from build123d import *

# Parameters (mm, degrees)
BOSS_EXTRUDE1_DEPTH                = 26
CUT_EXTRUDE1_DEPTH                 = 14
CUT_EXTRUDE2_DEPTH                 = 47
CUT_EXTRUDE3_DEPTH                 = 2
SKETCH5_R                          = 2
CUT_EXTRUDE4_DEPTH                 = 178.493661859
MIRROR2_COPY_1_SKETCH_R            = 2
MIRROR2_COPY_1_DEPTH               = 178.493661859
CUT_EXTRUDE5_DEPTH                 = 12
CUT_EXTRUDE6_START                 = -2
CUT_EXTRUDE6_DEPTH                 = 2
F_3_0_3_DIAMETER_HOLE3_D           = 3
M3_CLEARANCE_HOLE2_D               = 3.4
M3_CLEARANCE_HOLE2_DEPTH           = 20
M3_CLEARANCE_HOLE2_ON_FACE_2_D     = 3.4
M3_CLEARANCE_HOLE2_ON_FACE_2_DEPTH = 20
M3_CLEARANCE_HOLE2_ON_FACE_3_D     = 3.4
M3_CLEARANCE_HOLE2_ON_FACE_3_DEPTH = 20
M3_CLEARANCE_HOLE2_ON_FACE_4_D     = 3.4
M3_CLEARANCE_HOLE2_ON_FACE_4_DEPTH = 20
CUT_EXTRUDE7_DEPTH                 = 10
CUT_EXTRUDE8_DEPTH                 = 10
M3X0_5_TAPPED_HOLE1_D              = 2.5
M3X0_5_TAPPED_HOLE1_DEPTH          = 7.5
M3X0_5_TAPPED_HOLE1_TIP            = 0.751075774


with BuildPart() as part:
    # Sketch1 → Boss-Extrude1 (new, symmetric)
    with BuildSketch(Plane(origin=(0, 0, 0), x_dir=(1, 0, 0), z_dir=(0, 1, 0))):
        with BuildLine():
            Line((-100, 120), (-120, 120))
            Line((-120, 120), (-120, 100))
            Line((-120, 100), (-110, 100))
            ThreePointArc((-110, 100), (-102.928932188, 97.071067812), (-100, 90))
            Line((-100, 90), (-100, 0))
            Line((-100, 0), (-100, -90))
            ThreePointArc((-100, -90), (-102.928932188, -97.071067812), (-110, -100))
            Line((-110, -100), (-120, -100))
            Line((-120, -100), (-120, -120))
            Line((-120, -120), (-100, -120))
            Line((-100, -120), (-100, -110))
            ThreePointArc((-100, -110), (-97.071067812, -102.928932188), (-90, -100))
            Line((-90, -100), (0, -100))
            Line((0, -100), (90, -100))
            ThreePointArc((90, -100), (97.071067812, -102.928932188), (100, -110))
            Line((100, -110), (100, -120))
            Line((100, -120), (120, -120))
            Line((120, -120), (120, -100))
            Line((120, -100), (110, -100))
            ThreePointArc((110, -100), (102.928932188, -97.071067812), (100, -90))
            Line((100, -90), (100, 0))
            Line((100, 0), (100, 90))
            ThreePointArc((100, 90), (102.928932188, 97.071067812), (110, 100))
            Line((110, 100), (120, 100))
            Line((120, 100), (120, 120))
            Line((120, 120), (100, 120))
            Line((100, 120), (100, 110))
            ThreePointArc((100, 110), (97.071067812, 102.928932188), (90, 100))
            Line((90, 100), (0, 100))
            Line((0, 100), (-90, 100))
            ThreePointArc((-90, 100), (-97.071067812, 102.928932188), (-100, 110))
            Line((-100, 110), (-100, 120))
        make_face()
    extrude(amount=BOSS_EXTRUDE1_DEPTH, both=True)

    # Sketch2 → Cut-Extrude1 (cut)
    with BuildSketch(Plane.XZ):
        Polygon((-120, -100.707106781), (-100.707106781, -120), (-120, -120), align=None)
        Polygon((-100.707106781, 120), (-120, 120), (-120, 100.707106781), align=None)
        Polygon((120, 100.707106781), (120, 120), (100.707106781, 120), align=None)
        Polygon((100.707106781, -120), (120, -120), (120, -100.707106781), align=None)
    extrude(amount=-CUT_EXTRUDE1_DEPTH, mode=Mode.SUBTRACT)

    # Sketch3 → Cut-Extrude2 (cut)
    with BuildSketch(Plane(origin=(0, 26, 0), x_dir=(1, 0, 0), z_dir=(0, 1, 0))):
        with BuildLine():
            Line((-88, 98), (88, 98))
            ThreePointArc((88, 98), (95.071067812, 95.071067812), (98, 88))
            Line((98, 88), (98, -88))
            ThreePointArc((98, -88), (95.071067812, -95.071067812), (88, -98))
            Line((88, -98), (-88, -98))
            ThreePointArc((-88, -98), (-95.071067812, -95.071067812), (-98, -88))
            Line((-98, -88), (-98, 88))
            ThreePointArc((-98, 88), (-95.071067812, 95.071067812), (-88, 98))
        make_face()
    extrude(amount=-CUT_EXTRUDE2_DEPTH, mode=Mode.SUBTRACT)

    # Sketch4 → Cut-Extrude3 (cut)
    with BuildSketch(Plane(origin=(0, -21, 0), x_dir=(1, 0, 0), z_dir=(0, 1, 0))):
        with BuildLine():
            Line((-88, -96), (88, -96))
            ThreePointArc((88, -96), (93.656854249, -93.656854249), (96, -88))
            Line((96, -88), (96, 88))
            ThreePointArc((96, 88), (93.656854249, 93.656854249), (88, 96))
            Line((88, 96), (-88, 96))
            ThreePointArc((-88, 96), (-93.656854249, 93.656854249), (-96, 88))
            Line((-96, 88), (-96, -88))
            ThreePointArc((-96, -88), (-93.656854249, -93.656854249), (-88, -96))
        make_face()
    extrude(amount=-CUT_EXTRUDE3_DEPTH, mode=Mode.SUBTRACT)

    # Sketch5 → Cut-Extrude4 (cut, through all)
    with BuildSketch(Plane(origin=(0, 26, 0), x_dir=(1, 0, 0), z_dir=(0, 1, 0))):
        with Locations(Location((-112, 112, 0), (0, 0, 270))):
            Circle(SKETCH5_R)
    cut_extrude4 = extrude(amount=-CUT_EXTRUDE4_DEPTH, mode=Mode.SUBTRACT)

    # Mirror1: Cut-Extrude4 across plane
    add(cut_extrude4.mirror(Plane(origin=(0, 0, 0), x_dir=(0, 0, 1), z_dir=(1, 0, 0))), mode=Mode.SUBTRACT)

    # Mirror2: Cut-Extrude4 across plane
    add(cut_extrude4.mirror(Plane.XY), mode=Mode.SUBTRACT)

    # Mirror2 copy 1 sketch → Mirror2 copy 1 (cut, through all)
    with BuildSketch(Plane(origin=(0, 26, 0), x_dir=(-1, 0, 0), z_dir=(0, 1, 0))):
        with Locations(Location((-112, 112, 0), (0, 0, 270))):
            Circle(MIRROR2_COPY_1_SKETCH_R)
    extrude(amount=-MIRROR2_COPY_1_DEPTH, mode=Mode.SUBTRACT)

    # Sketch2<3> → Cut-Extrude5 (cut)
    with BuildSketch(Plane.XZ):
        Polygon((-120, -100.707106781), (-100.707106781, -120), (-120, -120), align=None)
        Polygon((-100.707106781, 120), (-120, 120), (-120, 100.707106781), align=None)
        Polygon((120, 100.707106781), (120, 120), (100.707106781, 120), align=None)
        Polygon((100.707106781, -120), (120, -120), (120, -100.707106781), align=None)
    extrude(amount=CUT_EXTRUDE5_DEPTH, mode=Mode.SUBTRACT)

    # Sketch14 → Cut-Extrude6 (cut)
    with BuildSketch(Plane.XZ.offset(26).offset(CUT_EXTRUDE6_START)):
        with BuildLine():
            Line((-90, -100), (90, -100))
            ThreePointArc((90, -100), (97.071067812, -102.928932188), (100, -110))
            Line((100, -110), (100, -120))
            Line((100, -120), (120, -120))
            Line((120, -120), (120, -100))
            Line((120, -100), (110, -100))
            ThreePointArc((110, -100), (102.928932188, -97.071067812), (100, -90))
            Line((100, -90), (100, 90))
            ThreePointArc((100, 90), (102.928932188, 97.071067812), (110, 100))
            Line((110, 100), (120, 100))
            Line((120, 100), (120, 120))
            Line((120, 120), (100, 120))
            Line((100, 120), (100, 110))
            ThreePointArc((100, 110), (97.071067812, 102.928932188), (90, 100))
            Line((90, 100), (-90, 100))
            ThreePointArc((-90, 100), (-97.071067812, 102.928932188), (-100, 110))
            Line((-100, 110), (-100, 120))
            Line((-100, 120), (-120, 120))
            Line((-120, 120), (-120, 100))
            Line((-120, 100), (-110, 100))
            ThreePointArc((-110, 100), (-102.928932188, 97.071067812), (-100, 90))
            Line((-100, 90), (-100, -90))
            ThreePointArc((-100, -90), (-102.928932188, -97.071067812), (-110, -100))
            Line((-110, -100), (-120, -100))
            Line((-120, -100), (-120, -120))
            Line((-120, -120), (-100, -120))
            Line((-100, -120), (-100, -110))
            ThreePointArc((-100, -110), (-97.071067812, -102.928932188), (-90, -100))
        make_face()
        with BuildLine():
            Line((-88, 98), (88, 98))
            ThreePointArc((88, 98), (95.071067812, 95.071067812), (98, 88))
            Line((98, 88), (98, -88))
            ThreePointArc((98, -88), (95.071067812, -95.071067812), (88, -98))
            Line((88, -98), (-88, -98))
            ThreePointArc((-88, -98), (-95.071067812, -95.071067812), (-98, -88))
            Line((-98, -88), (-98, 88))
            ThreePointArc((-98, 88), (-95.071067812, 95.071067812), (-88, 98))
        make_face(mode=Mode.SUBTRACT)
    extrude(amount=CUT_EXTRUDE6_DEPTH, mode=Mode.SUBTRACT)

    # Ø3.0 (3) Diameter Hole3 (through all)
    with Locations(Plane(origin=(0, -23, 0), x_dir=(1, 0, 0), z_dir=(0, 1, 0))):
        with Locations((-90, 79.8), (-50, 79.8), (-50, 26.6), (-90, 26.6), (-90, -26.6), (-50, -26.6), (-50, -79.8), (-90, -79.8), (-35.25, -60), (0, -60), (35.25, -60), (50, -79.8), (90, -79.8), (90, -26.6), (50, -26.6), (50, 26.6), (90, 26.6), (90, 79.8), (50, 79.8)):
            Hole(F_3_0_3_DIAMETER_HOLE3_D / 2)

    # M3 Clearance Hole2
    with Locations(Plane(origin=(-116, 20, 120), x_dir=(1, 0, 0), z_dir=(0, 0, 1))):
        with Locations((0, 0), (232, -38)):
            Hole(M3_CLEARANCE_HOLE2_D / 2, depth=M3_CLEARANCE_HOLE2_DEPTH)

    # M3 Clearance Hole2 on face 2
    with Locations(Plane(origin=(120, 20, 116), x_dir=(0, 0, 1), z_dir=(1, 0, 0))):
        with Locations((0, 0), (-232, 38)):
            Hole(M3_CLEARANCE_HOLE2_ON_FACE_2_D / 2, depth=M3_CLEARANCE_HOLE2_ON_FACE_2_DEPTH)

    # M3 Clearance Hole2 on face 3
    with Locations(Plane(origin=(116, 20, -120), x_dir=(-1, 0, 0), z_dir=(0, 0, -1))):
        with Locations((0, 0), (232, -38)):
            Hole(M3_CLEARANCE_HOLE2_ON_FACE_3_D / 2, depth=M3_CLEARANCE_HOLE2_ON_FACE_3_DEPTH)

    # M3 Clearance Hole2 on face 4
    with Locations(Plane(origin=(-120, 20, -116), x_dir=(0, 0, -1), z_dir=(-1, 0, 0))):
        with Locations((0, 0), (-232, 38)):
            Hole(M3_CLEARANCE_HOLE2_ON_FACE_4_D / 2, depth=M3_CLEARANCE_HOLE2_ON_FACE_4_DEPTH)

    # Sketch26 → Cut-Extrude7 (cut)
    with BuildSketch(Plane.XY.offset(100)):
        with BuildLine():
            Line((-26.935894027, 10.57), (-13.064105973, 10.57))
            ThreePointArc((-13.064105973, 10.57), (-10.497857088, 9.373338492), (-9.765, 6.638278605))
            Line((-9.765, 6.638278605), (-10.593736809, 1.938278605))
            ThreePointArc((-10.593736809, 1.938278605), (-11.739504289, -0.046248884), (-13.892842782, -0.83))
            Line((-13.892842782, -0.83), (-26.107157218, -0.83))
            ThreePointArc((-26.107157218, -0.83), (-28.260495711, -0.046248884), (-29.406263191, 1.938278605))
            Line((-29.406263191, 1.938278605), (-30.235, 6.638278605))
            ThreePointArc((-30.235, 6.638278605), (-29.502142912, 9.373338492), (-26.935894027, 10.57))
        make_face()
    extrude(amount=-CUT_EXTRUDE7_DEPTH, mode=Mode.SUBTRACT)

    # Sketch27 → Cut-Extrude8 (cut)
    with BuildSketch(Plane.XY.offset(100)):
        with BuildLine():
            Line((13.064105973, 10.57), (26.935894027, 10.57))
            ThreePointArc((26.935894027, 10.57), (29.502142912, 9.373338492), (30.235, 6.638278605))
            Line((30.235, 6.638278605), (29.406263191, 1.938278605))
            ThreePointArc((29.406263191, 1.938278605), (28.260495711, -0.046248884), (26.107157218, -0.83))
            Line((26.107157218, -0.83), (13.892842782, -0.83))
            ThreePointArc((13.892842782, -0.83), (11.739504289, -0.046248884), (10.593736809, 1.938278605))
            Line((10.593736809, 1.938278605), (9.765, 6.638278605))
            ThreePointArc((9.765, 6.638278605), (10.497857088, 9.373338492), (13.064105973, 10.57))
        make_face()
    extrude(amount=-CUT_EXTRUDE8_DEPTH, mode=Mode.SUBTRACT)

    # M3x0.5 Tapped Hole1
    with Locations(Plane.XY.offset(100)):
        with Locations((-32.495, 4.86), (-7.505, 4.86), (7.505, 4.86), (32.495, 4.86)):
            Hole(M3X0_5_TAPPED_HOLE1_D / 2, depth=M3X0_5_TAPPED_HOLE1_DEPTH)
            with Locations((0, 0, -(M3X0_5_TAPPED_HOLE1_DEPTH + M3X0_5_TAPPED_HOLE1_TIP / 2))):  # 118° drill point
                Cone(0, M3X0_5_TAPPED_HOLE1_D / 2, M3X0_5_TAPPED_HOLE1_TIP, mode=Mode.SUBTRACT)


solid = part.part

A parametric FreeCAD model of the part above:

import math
import FreeCAD as App
import Part
import Sketcher

V = App.Vector
Q = App.Units.Quantity

doc = App.newDocument("Part")
params = doc.addObject("Spreadsheet::Sheet", "Params")
for row, (alias, value) in enumerate([
    ("sketch1_radius", "10 mm"),
    ("sketch1_width", "20 mm"),
    ("sketch1_width2", "180 mm"),
    ("pad1_length", "52 mm"),
    ("pocket1_length", "14 mm"),
    ("sketch3_radius", "10 mm"),
    ("sketch3_width", "176 mm"),
    ("pocket2_length", "47 mm"),
    ("sketch4_radius", "8 mm"),
    ("sketch4_width", "176 mm"),
    ("pocket3_length", "2 mm"),
    ("sketch5_diameter", "4 mm"),
    ("sketch6_diameter", "4 mm"),
    ("pocket6_length", "12 mm"),
    ("sketch8_radius", "10 mm"),
    ("sketch8_width", "180 mm"),
    ("sketch8_width2", "20 mm"),
    ("sketch8_width3", "176 mm"),
    ("pocket7_length", "2 mm"),
    ("sketch9_diameter", "3 mm"),
    ("hole_diameter", "3 mm"),
    ("sketch10_diameter", "3.4 mm"),
    ("hole2_diameter", "3.4 mm"),
    ("hole2_depth", "20 mm"),
    ("sketch11_diameter", "3.4 mm"),
    ("hole3_diameter", "3.4 mm"),
    ("hole3_depth", "20 mm"),
    ("sketch12_diameter", "3.4 mm"),
    ("hole4_diameter", "3.4 mm"),
    ("hole4_depth", "20 mm"),
    ("sketch13_diameter", "3.4 mm"),
    ("hole5_diameter", "3.4 mm"),
    ("hole5_depth", "20 mm"),
    ("sketch14_radius", "3.35 mm"),
    ("pocket8_length", "10 mm"),
    ("sketch15_radius", "3.35 mm"),
    ("pocket9_length", "10 mm"),
    ("sketch16_diameter", "2.5 mm"),
    ("hole6_diameter", "2.5 mm"),
    ("hole6_depth", "7.5 mm"),
], start=1):
    params.set(f"A{row}", alias)
    params.set(f"B{row}", "=" + value)
    params.setAlias(f"B{row}", alias)

body = doc.addObject("PartDesign::Body", "Body")

sketch1 = body.newObject("Sketcher::SketchObject", "Sketch")
sketch1.AttachmentSupport = (doc.getObject("XZ_Plane"), [""])
sketch1.MapMode = "FlatFace"
sketch1.addGeometry([
    Part.LineSegment(V(-100, -120, 0), V(-120, -120, 0)),
    Part.LineSegment(V(-120, -120, 0), V(-120, -100, 0)),
    Part.LineSegment(V(-120, -100, 0), V(-110, -100, 0)),
    Part.ArcOfCircle(Part.Circle(V(-110, -90, 0), V(0, 0, 1), 10), math.radians(-90), math.radians(0)),
    Part.LineSegment(V(-100, -90, 0), V(-100, 90, 0)),
    Part.ArcOfCircle(Part.Circle(V(-110, 90, 0), V(0, 0, 1), 10), math.radians(0), math.radians(90)),
    Part.LineSegment(V(-110, 100, 0), V(-120, 100, 0)),
    Part.LineSegment(V(-120, 100, 0), V(-120, 120, 0)),
    Part.LineSegment(V(-120, 120, 0), V(-100, 120, 0)),
    Part.LineSegment(V(-100, 120, 0), V(-100, 110, 0)),
    Part.ArcOfCircle(Part.Circle(V(-90, 110, 0), V(0, 0, 1), 10), math.radians(180), math.radians(270)),
    Part.LineSegment(V(-90, 100, 0), V(90, 100, 0)),
    Part.ArcOfCircle(Part.Circle(V(90, 110, 0), V(0, 0, 1), 10), math.radians(-90), math.radians(0)),
    Part.LineSegment(V(100, 110, 0), V(100, 120, 0)),
    Part.LineSegment(V(100, 120, 0), V(120, 120, 0)),
    Part.LineSegment(V(120, 120, 0), V(120, 100, 0)),
    Part.LineSegment(V(120, 100, 0), V(110, 100, 0)),
    Part.ArcOfCircle(Part.Circle(V(110, 90, 0), V(0, 0, 1), 10), math.radians(90), math.radians(180)),
    Part.LineSegment(V(100, 90, 0), V(100, -90, 0)),
    Part.ArcOfCircle(Part.Circle(V(110, -90, 0), V(0, 0, 1), 10), math.radians(180), math.radians(270)),
    Part.LineSegment(V(110, -100, 0), V(120, -100, 0)),
    Part.LineSegment(V(120, -100, 0), V(120, -120, 0)),
    Part.LineSegment(V(120, -120, 0), V(100, -120, 0)),
    Part.LineSegment(V(100, -120, 0), V(100, -110, 0)),
    Part.ArcOfCircle(Part.Circle(V(90, -110, 0), V(0, 0, 1), 10), math.radians(0), math.radians(90)),
    Part.LineSegment(V(90, -100, 0), V(-90, -100, 0)),
    Part.ArcOfCircle(Part.Circle(V(-90, -110, 0), V(0, 0, 1), 10), math.radians(90), math.radians(180)),
    Part.LineSegment(V(-100, -110, 0), V(-100, -120, 0)),
], False)
sketch1.addConstraint([
    Sketcher.Constraint("Coincident", 0, 2, 1, 1),
    Sketcher.Constraint("Coincident", 1, 2, 2, 1),
    Sketcher.Constraint("Tangent", 2, 2, 3, 1),
    Sketcher.Constraint("Tangent", 3, 2, 4, 1),
    Sketcher.Constraint("Tangent", 4, 2, 5, 1),
    Sketcher.Constraint("Tangent", 5, 2, 6, 1),
    Sketcher.Constraint("Coincident", 6, 2, 7, 1),
    Sketcher.Constraint("Coincident", 7, 2, 8, 1),
    Sketcher.Constraint("Coincident", 8, 2, 9, 1),
    Sketcher.Constraint("Tangent", 9, 2, 10, 1),
    Sketcher.Constraint("Tangent", 10, 2, 11, 1),
    Sketcher.Constraint("Tangent", 11, 2, 12, 1),
    Sketcher.Constraint("Tangent", 12, 2, 13, 1),
    Sketcher.Constraint("Coincident", 13, 2, 14, 1),
    Sketcher.Constraint("Coincident", 14, 2, 15, 1),
    Sketcher.Constraint("Coincident", 15, 2, 16, 1),
    Sketcher.Constraint("Tangent", 16, 2, 17, 1),
    Sketcher.Constraint("Tangent", 17, 2, 18, 1),
    Sketcher.Constraint("Tangent", 18, 2, 19, 1),
    Sketcher.Constraint("Tangent", 19, 2, 20, 1),
    Sketcher.Constraint("Coincident", 20, 2, 21, 1),
    Sketcher.Constraint("Coincident", 21, 2, 22, 1),
    Sketcher.Constraint("Coincident", 22, 2, 23, 1),
    Sketcher.Constraint("Tangent", 23, 2, 24, 1),
    Sketcher.Constraint("Tangent", 24, 2, 25, 1),
    Sketcher.Constraint("Tangent", 25, 2, 26, 1),
    Sketcher.Constraint("Tangent", 26, 2, 27, 1),
    Sketcher.Constraint("Coincident", 27, 2, 0, 1),
    Sketcher.Constraint("Horizontal", 0),
    Sketcher.Constraint("Vertical", 1),
    Sketcher.Constraint("Horizontal", 2),
    Sketcher.Constraint("Vertical", 4),
    Sketcher.Constraint("Horizontal", 6),
    Sketcher.Constraint("Vertical", 7),
    Sketcher.Constraint("Horizontal", 8),
    Sketcher.Constraint("Vertical", 9),
    Sketcher.Constraint("Horizontal", 11),
    Sketcher.Constraint("Vertical", 13),
    Sketcher.Constraint("Horizontal", 14),
    Sketcher.Constraint("Vertical", 15),
    Sketcher.Constraint("Horizontal", 16),
    Sketcher.Constraint("Vertical", 18),
    Sketcher.Constraint("Horizontal", 20),
    Sketcher.Constraint("Vertical", 21),
    Sketcher.Constraint("Horizontal", 22),
    Sketcher.Constraint("Vertical", 23),
    Sketcher.Constraint("Horizontal", 25),
    Sketcher.Constraint("Vertical", 27),
    Sketcher.Constraint("Equal", 3, 5),
    Sketcher.Constraint("Equal", 5, 10),
    Sketcher.Constraint("Equal", 10, 12),
    Sketcher.Constraint("Equal", 12, 17),
    Sketcher.Constraint("Equal", 17, 19),
    Sketcher.Constraint("Equal", 19, 24),
    Sketcher.Constraint("Equal", 24, 26),
    Sketcher.Constraint("Symmetric", 3, 3, 17, 3, -1, 1),
    Sketcher.Constraint("Symmetric", 10, 3, 24, 3, -1, 1),
    Sketcher.Constraint("Symmetric", 0, 2, 14, 2, -1, 1),
    Sketcher.Constraint("Symmetric", 6, 2, 20, 2, -1, 1),
    Sketcher.Constraint("Symmetric", 8, 2, 13, 2, -2),
    Sketcher.Constraint("Symmetric", 6, 2, 15, 2, -2),
    Sketcher.Constraint("Symmetric", 22, 2, 27, 2, -2),
    Sketcher.Constraint("Horizontal", 6, 2, 10, 2),
    Sketcher.Constraint("Vertical", 4, 2, 8, 2),
    Sketcher.Constraint("Equal", 22, 1),
    Sketcher.Constraint("Equal", 25, 4),
    Sketcher.Constraint("Radius", 3, 10.0),
    Sketcher.Constraint("DistanceX", 0, 2, 0, 1, 20.0),
    Sketcher.Constraint("DistanceX", 11, 1, 11, 2, 180.0),
])
sketch1.setExpression("Constraints[66]", "Params.sketch1_radius")
sketch1.setExpression("Constraints[67]", "Params.sketch1_width")
sketch1.setExpression("Constraints[68]", "Params.sketch1_width2")
pad1 = body.newObject("PartDesign::Pad", "Pad")
pad1.Profile = sketch1
pad1.setExpression("Length", "Params.pad1_length")
pad1.Midplane = True

sketch2 = body.newObject("Sketcher::SketchObject", "Sketch001")
sketch2.AttachmentSupport = (doc.getObject("XZ_Plane"), [""])
sketch2.MapMode = "FlatFace"
sketch2.addGeometry([
    Part.LineSegment(V(-100.707107, -120, 0), V(-120, -100.707107, 0)),
    Part.LineSegment(V(-120, -100.707107, 0), V(-120, -120, 0)),
    Part.LineSegment(V(-120, -120, 0), V(-100.707107, -120, 0)),
    Part.LineSegment(V(-100.707107, 120, 0), V(-120, 120, 0)),
    Part.LineSegment(V(-120, 120, 0), V(-120, 100.707107, 0)),
    Part.LineSegment(V(-120, 100.707107, 0), V(-100.707107, 120, 0)),
    Part.LineSegment(V(120, 100.707107, 0), V(120, 120, 0)),
    Part.LineSegment(V(120, 120, 0), V(100.707107, 120, 0)),
    Part.LineSegment(V(100.707107, 120, 0), V(120, 100.707107, 0)),
    Part.LineSegment(V(100.707107, -120, 0), V(120, -120, 0)),
    Part.LineSegment(V(120, -120, 0), V(120, -100.707107, 0)),
    Part.LineSegment(V(120, -100.707107, 0), V(100.707107, -120, 0)),
], False)
sketch2.addConstraint([
    Sketcher.Constraint("Coincident", 0, 2, 1, 1),
    Sketcher.Constraint("Coincident", 1, 2, 2, 1),
    Sketcher.Constraint("Coincident", 2, 2, 0, 1),
    Sketcher.Constraint("Coincident", 3, 2, 4, 1),
    Sketcher.Constraint("Coincident", 4, 2, 5, 1),
    Sketcher.Constraint("Coincident", 5, 2, 3, 1),
    Sketcher.Constraint("Coincident", 6, 2, 7, 1),
    Sketcher.Constraint("Coincident", 7, 2, 8, 1),
    Sketcher.Constraint("Coincident", 8, 2, 6, 1),
    Sketcher.Constraint("Coincident", 9, 2, 10, 1),
    Sketcher.Constraint("Coincident", 10, 2, 11, 1),
    Sketcher.Constraint("Coincident", 11, 2, 9, 1),
    Sketcher.Constraint("Vertical", 1),
    Sketcher.Constraint("Horizontal", 2),
    Sketcher.Constraint("Horizontal", 3),
    Sketcher.Constraint("Vertical", 4),
    Sketcher.Constraint("Vertical", 6),
    Sketcher.Constraint("Horizontal", 7),
    Sketcher.Constraint("Horizontal", 9),
    Sketcher.Constraint("Vertical", 10),
    Sketcher.Constraint("Symmetric", 1, 2, 6, 2, -1, 1),
    Sketcher.Constraint("Symmetric", 3, 2, 9, 2, -1, 1),
    Sketcher.Constraint("Symmetric", 3, 2, 6, 2, -2),
    Sketcher.Constraint("Perpendicular", 0, 5),
    Sketcher.Constraint("Perpendicular", 5, 8),
    Sketcher.Constraint("Perpendicular", 8, 11),
    Sketcher.Constraint("Horizontal", 4, 2, 8, 2),
    Sketcher.Constraint("Horizontal", 0, 2, 10, 2),
    Sketcher.Constraint("Vertical", 2, 2, 5, 2),
    Sketcher.Constraint("Vertical", 7, 2, 11, 2),
    Sketcher.Constraint("DistanceX", 0, 2, -1, 1, 120.0),
    Sketcher.Constraint("DistanceY", 1, 2, -1, 1, 120.0),
    Sketcher.Constraint("Distance", 0, 27.284271),
])
pocket1 = body.newObject("PartDesign::Pocket", "Pocket")
pocket1.Profile = sketch2
pocket1.setExpression("Length", "Params.pocket1_length")

sketch3 = body.newObject("Sketcher::SketchObject", "Sketch002")
sketch3.AttachmentSupport = (doc.getObject("XZ_Plane"), [""])
sketch3.MapMode = "FlatFace"
sketch3.AttachmentOffset = App.Placement(V(0, 0, -26), App.Rotation())
sketch3.addGeometry([
    Part.LineSegment(V(88, -98, 0), V(-88, -98, 0)),
    Part.ArcOfCircle(Part.Circle(V(-88, -88, 0), V(0, 0, 1), 10), math.radians(180), math.radians(270)),
    Part.LineSegment(V(-98, -88, 0), V(-98, 88, 0)),
    Part.ArcOfCircle(Part.Circle(V(-88, 88, 0), V(0, 0, 1), 10), math.radians(90), math.radians(180)),
    Part.LineSegment(V(-88, 98, 0), V(88, 98, 0)),
    Part.ArcOfCircle(Part.Circle(V(88, 88, 0), V(0, 0, 1), 10), math.radians(0), math.radians(90)),
    Part.LineSegment(V(98, 88, 0), V(98, -88, 0)),
    Part.ArcOfCircle(Part.Circle(V(88, -88, 0), V(0, 0, 1), 10), math.radians(-90), math.radians(0)),
], False)
sketch3.addConstraint([
    Sketcher.Constraint("Tangent", 0, 2, 1, 2),
    Sketcher.Constraint("Tangent", 1, 1, 2, 1),
    Sketcher.Constraint("Tangent", 2, 2, 3, 2),
    Sketcher.Constraint("Tangent", 3, 1, 4, 1),
    Sketcher.Constraint("Tangent", 4, 2, 5, 2),
    Sketcher.Constraint("Tangent", 5, 1, 6, 1),
    Sketcher.Constraint("Tangent", 6, 2, 7, 2),
    Sketcher.Constraint("Tangent", 7, 1, 0, 1),
    Sketcher.Constraint("Horizontal", 0),
    Sketcher.Constraint("Vertical", 2),
    Sketcher.Constraint("Horizontal", 4),
    Sketcher.Constraint("Vertical", 6),
    Sketcher.Constraint("Equal", 1, 3),
    Sketcher.Constraint("Equal", 3, 5),
    Sketcher.Constraint("Equal", 5, 7),
    Sketcher.Constraint("Symmetric", 1, 3, 5, 3, -1, 1),
    Sketcher.Constraint("Equal", 4, 2),
    Sketcher.Constraint("Radius", 1, 10.0),
    Sketcher.Constraint("DistanceX", 0, 2, 0, 1, 176.0),
])
sketch3.setExpression("Constraints[17]", "Params.sketch3_radius")
sketch3.setExpression("Constraints[18]", "Params.sketch3_width")
pocket2 = body.newObject("PartDesign::Pocket", "Pocket001")
pocket2.Profile = sketch3
pocket2.setExpression("Length", "Params.pocket2_length")
pocket2.Reversed = True

sketch4 = body.newObject("Sketcher::SketchObject", "Sketch003")
sketch4.AttachmentSupport = (doc.getObject("XZ_Plane"), [""])
sketch4.MapMode = "FlatFace"
sketch4.AttachmentOffset = App.Placement(V(0, 0, 21), App.Rotation())
sketch4.addGeometry([
    Part.LineSegment(V(-88, 96, 0), V(88, 96, 0)),
    Part.ArcOfCircle(Part.Circle(V(88, 88, 0), V(0, 0, 1), 8), math.radians(0), math.radians(90)),
    Part.LineSegment(V(96, 88, 0), V(96, -88, 0)),
    Part.ArcOfCircle(Part.Circle(V(88, -88, 0), V(0, 0, 1), 8), math.radians(-90), math.radians(0)),
    Part.LineSegment(V(88, -96, 0), V(-88, -96, 0)),
    Part.ArcOfCircle(Part.Circle(V(-88, -88, 0), V(0, 0, 1), 8), math.radians(-180), math.radians(-90)),
    Part.LineSegment(V(-96, -88, 0), V(-96, 88, 0)),
    Part.ArcOfCircle(Part.Circle(V(-88, 88, 0), V(0, 0, 1), 8), math.radians(90), math.radians(180)),
], False)
sketch4.addConstraint([
    Sketcher.Constraint("Tangent", 0, 2, 1, 2),
    Sketcher.Constraint("Tangent", 1, 1, 2, 1),
    Sketcher.Constraint("Tangent", 2, 2, 3, 2),
    Sketcher.Constraint("Tangent", 3, 1, 4, 1),
    Sketcher.Constraint("Tangent", 4, 2, 5, 2),
    Sketcher.Constraint("Tangent", 5, 1, 6, 1),
    Sketcher.Constraint("Tangent", 6, 2, 7, 2),
    Sketcher.Constraint("Tangent", 7, 1, 0, 1),
    Sketcher.Constraint("Horizontal", 0),
    Sketcher.Constraint("Vertical", 2),
    Sketcher.Constraint("Horizontal", 4),
    Sketcher.Constraint("Vertical", 6),
    Sketcher.Constraint("Equal", 1, 3),
    Sketcher.Constraint("Equal", 3, 5),
    Sketcher.Constraint("Equal", 5, 7),
    Sketcher.Constraint("Symmetric", 1, 3, 5, 3, -1, 1),
    Sketcher.Constraint("Equal", 4, 2),
    Sketcher.Constraint("Radius", 1, 8.0),
    Sketcher.Constraint("DistanceX", 0, 1, 0, 2, 176.0),
])
sketch4.setExpression("Constraints[17]", "Params.sketch4_radius")
sketch4.setExpression("Constraints[18]", "Params.sketch4_width")
pocket3 = body.newObject("PartDesign::Pocket", "Pocket002")
pocket3.Profile = sketch4
pocket3.setExpression("Length", "Params.pocket3_length")
pocket3.Reversed = True

sketch5 = body.newObject("Sketcher::SketchObject", "Sketch004")
sketch5.AttachmentSupport = (doc.getObject("XZ_Plane"), [""])
sketch5.MapMode = "FlatFace"
sketch5.AttachmentOffset = App.Placement(V(0, 0, -26), App.Rotation())
sketch5.addGeometry(Part.Circle(V(-112, -112, 0), V(0, 0, 1), 2), False)
sketch5.addConstraint([
    Sketcher.Constraint("Diameter", 0, 4.0),
    Sketcher.Constraint("DistanceX", 0, 3, -1, 1, 112.0),
    Sketcher.Constraint("DistanceY", 0, 3, -1, 1, 112.0),
])
sketch5.setExpression("Constraints[0]", "Params.sketch5_diameter")
pocket4 = body.newObject("PartDesign::Pocket", "Pocket003")
pocket4.Profile = sketch5
pocket4.Type = "ThroughAll"
pocket4.Reversed = True
doc.recompute()

mirrored = body.newObject("PartDesign::Mirrored", "Mirrored")
mirrored.Originals = [pocket4]
mirrored.MirrorPlane = (doc.getObject("YZ_Plane"), [""])
body.Tip = mirrored
doc.recompute()

mirrored2 = body.newObject("PartDesign::Mirrored", "Mirrored001")
mirrored2.Originals = [pocket4]
mirrored2.MirrorPlane = (doc.getObject("XY_Plane"), [""])
body.Tip = mirrored2

sketch6 = body.newObject("Sketcher::SketchObject", "Sketch005")
sketch6.AttachmentSupport = (doc.getObject("XZ_Plane"), [""])
sketch6.MapMode = "FlatFace"
sketch6.AttachmentOffset = App.Placement(V(0, 0, -26), App.Rotation())
sketch6.addGeometry(Part.Circle(V(112, 112, 0), V(0, 0, 1), 2), False)
sketch6.addConstraint([
    Sketcher.Constraint("Diameter", 0, 4.0),
    Sketcher.Constraint("DistanceX", -1, 1, 0, 3, 112.0),
    Sketcher.Constraint("DistanceY", -1, 1, 0, 3, 112.0),
])
sketch6.setExpression("Constraints[0]", "Params.sketch6_diameter")
pocket5 = body.newObject("PartDesign::Pocket", "Pocket004")
pocket5.Profile = sketch6
pocket5.Type = "ThroughAll"
pocket5.Reversed = True

sketch7 = body.newObject("Sketcher::SketchObject", "Sketch006")
sketch7.AttachmentSupport = (doc.getObject("XZ_Plane"), [""])
sketch7.MapMode = "FlatFace"
sketch7.addGeometry([
    Part.LineSegment(V(-100.707107, -120, 0), V(-120, -100.707107, 0)),
    Part.LineSegment(V(-120, -100.707107, 0), V(-120, -120, 0)),
    Part.LineSegment(V(-120, -120, 0), V(-100.707107, -120, 0)),
    Part.LineSegment(V(-100.707107, 120, 0), V(-120, 120, 0)),
    Part.LineSegment(V(-120, 120, 0), V(-120, 100.707107, 0)),
    Part.LineSegment(V(-120, 100.707107, 0), V(-100.707107, 120, 0)),
    Part.LineSegment(V(120, 100.707107, 0), V(120, 120, 0)),
    Part.LineSegment(V(120, 120, 0), V(100.707107, 120, 0)),
    Part.LineSegment(V(100.707107, 120, 0), V(120, 100.707107, 0)),
    Part.LineSegment(V(100.707107, -120, 0), V(120, -120, 0)),
    Part.LineSegment(V(120, -120, 0), V(120, -100.707107, 0)),
    Part.LineSegment(V(120, -100.707107, 0), V(100.707107, -120, 0)),
], False)
sketch7.addConstraint([
    Sketcher.Constraint("Coincident", 0, 2, 1, 1),
    Sketcher.Constraint("Coincident", 1, 2, 2, 1),
    Sketcher.Constraint("Coincident", 2, 2, 0, 1),
    Sketcher.Constraint("Coincident", 3, 2, 4, 1),
    Sketcher.Constraint("Coincident", 4, 2, 5, 1),
    Sketcher.Constraint("Coincident", 5, 2, 3, 1),
    Sketcher.Constraint("Coincident", 6, 2, 7, 1),
    Sketcher.Constraint("Coincident", 7, 2, 8, 1),
    Sketcher.Constraint("Coincident", 8, 2, 6, 1),
    Sketcher.Constraint("Coincident", 9, 2, 10, 1),
    Sketcher.Constraint("Coincident", 10, 2, 11, 1),
    Sketcher.Constraint("Coincident", 11, 2, 9, 1),
    Sketcher.Constraint("Vertical", 1),
    Sketcher.Constraint("Horizontal", 2),
    Sketcher.Constraint("Horizontal", 3),
    Sketcher.Constraint("Vertical", 4),
    Sketcher.Constraint("Vertical", 6),
    Sketcher.Constraint("Horizontal", 7),
    Sketcher.Constraint("Horizontal", 9),
    Sketcher.Constraint("Vertical", 10),
    Sketcher.Constraint("Symmetric", 1, 2, 6, 2, -1, 1),
    Sketcher.Constraint("Symmetric", 3, 2, 9, 2, -1, 1),
    Sketcher.Constraint("Symmetric", 3, 2, 6, 2, -2),
    Sketcher.Constraint("Perpendicular", 0, 5),
    Sketcher.Constraint("Perpendicular", 5, 8),
    Sketcher.Constraint("Perpendicular", 8, 11),
    Sketcher.Constraint("Horizontal", 4, 2, 8, 2),
    Sketcher.Constraint("Horizontal", 0, 2, 10, 2),
    Sketcher.Constraint("Vertical", 2, 2, 5, 2),
    Sketcher.Constraint("Vertical", 7, 2, 11, 2),
    Sketcher.Constraint("DistanceX", 0, 2, -1, 1, 120.0),
    Sketcher.Constraint("DistanceY", 1, 2, -1, 1, 120.0),
    Sketcher.Constraint("Distance", 0, 27.284271),
])
pocket6 = body.newObject("PartDesign::Pocket", "Pocket005")
pocket6.Profile = sketch7
pocket6.setExpression("Length", "Params.pocket6_length")
pocket6.Reversed = True

sketch8 = body.newObject("Sketcher::SketchObject", "Sketch007")
sketch8.AttachmentSupport = (doc.getObject("XZ_Plane"), [""])
sketch8.MapMode = "FlatFace"
sketch8.AttachmentOffset = App.Placement(V(0, 0, 24), App.Rotation())
sketch8.addGeometry([
    Part.LineSegment(V(-90, -100, 0), V(90, -100, 0)),
    Part.ArcOfCircle(Part.Circle(V(90, -110, 0), V(0, 0, 1), 10), math.radians(0), math.radians(90)),
    Part.LineSegment(V(100, -110, 0), V(100, -120, 0)),
    Part.LineSegment(V(100, -120, 0), V(120, -120, 0)),
    Part.LineSegment(V(120, -120, 0), V(120, -100, 0)),
    Part.LineSegment(V(120, -100, 0), V(110, -100, 0)),
    Part.ArcOfCircle(Part.Circle(V(110, -90, 0), V(0, 0, 1), 10), math.radians(180), math.radians(270)),
    Part.LineSegment(V(100, -90, 0), V(100, 90, 0)),
    Part.ArcOfCircle(Part.Circle(V(110, 90, 0), V(0, 0, 1), 10), math.radians(90), math.radians(180)),
    Part.LineSegment(V(110, 100, 0), V(120, 100, 0)),
    Part.LineSegment(V(120, 100, 0), V(120, 120, 0)),
    Part.LineSegment(V(120, 120, 0), V(100, 120, 0)),
    Part.LineSegment(V(100, 120, 0), V(100, 110, 0)),
    Part.ArcOfCircle(Part.Circle(V(90, 110, 0), V(0, 0, 1), 10), math.radians(-90), math.radians(0)),
    Part.LineSegment(V(90, 100, 0), V(-90, 100, 0)),
    Part.ArcOfCircle(Part.Circle(V(-90, 110, 0), V(0, 0, 1), 10), math.radians(180), math.radians(270)),
    Part.LineSegment(V(-100, 110, 0), V(-100, 120, 0)),
    Part.LineSegment(V(-100, 120, 0), V(-120, 120, 0)),
    Part.LineSegment(V(-120, 120, 0), V(-120, 100, 0)),
    Part.LineSegment(V(-120, 100, 0), V(-110, 100, 0)),
    Part.ArcOfCircle(Part.Circle(V(-110, 90, 0), V(0, 0, 1), 10), math.radians(0), math.radians(90)),
    Part.LineSegment(V(-100, 90, 0), V(-100, -90, 0)),
    Part.ArcOfCircle(Part.Circle(V(-110, -90, 0), V(0, 0, 1), 10), math.radians(-90), math.radians(0)),
    Part.LineSegment(V(-110, -100, 0), V(-120, -100, 0)),
    Part.LineSegment(V(-120, -100, 0), V(-120, -120, 0)),
    Part.LineSegment(V(-120, -120, 0), V(-100, -120, 0)),
    Part.LineSegment(V(-100, -120, 0), V(-100, -110, 0)),
    Part.ArcOfCircle(Part.Circle(V(-90, -110, 0), V(0, 0, 1), 10), math.radians(90), math.radians(180)),
    Part.ArcOfCircle(Part.Circle(V(-88, 88, 0), V(0, 0, 1), 10), math.radians(90), math.radians(180)),
    Part.LineSegment(V(-88, 98, 0), V(88, 98, 0)),
    Part.ArcOfCircle(Part.Circle(V(88, 88, 0), V(0, 0, 1), 10), math.radians(0), math.radians(90)),
    Part.LineSegment(V(98, 88, 0), V(98, -88, 0)),
    Part.ArcOfCircle(Part.Circle(V(88, -88, 0), V(0, 0, 1), 10), math.radians(-90), math.radians(0)),
    Part.LineSegment(V(88, -98, 0), V(-88, -98, 0)),
    Part.ArcOfCircle(Part.Circle(V(-88, -88, 0), V(0, 0, 1), 10), math.radians(180), math.radians(270)),
    Part.LineSegment(V(-98, -88, 0), V(-98, 88, 0)),
], False)
sketch8.addConstraint([
    Sketcher.Constraint("Tangent", 0, 2, 1, 2),
    Sketcher.Constraint("Tangent", 1, 1, 2, 1),
    Sketcher.Constraint("Coincident", 2, 2, 3, 1),
    Sketcher.Constraint("Coincident", 3, 2, 4, 1),
    Sketcher.Constraint("Coincident", 4, 2, 5, 1),
    Sketcher.Constraint("Tangent", 5, 2, 6, 2),
    Sketcher.Constraint("Tangent", 6, 1, 7, 1),
    Sketcher.Constraint("Tangent", 7, 2, 8, 2),
    Sketcher.Constraint("Tangent", 8, 1, 9, 1),
    Sketcher.Constraint("Coincident", 9, 2, 10, 1),
    Sketcher.Constraint("Coincident", 10, 2, 11, 1),
    Sketcher.Constraint("Coincident", 11, 2, 12, 1),
    Sketcher.Constraint("Tangent", 12, 2, 13, 2),
    Sketcher.Constraint("Tangent", 13, 1, 14, 1),
    Sketcher.Constraint("Tangent", 14, 2, 15, 2),
    Sketcher.Constraint("Tangent", 15, 1, 16, 1),
    Sketcher.Constraint("Coincident", 16, 2, 17, 1),
    Sketcher.Constraint("Coincident", 17, 2, 18, 1),
    Sketcher.Constraint("Coincident", 18, 2, 19, 1),
    Sketcher.Constraint("Tangent", 19, 2, 20, 2),
    Sketcher.Constraint("Tangent", 20, 1, 21, 1),
    Sketcher.Constraint("Tangent", 21, 2, 22, 2),
    Sketcher.Constraint("Tangent", 22, 1, 23, 1),
    Sketcher.Constraint("Coincident", 23, 2, 24, 1),
    Sketcher.Constraint("Coincident", 24, 2, 25, 1),
    Sketcher.Constraint("Coincident", 25, 2, 26, 1),
    Sketcher.Constraint("Tangent", 26, 2, 27, 2),
    Sketcher.Constraint("Tangent", 27, 1, 0, 1),
    Sketcher.Constraint("Tangent", 28, 1, 29, 1),
    Sketcher.Constraint("Tangent", 29, 2, 30, 2),
    Sketcher.Constraint("Tangent", 30, 1, 31, 1),
    Sketcher.Constraint("Tangent", 31, 2, 32, 2),
    Sketcher.Constraint("Tangent", 32, 1, 33, 1),
    Sketcher.Constraint("Tangent", 33, 2, 34, 2),
    Sketcher.Constraint("Tangent", 34, 1, 35, 1),
    Sketcher.Constraint("Tangent", 35, 2, 28, 2),
    Sketcher.Constraint("Horizontal", 0),
    Sketcher.Constraint("Vertical", 2),
    Sketcher.Constraint("Horizontal", 3),
    Sketcher.Constraint("Vertical", 4),
    Sketcher.Constraint("Horizontal", 5),
    Sketcher.Constraint("Vertical", 7),
    Sketcher.Constraint("Horizontal", 9),
    Sketcher.Constraint("Vertical", 10),
    Sketcher.Constraint("Horizontal", 11),
    Sketcher.Constraint("Vertical", 12),
    Sketcher.Constraint("Horizontal", 14),
    Sketcher.Constraint("Vertical", 16),
    Sketcher.Constraint("Horizontal", 17),
    Sketcher.Constraint("Vertical", 18),
    Sketcher.Constraint("Horizontal", 19),
    Sketcher.Constraint("Vertical", 21),
    Sketcher.Constraint("Horizontal", 23),
    Sketcher.Constraint("Vertical", 24),
    Sketcher.Constraint("Horizontal", 25),
    Sketcher.Constraint("Vertical", 26),
    Sketcher.Constraint("Horizontal", 29),
    Sketcher.Constraint("Vertical", 31),
    Sketcher.Constraint("Horizontal", 33),
    Sketcher.Constraint("Vertical", 35),
    Sketcher.Constraint("Equal", 1, 6),
    Sketcher.Constraint("Equal", 6, 8),
    Sketcher.Constraint("Equal", 8, 13),
    Sketcher.Constraint("Equal", 13, 15),
    Sketcher.Constraint("Equal", 15, 20),
    Sketcher.Constraint("Equal", 20, 22),
    Sketcher.Constraint("Equal", 22, 27),
    Sketcher.Constraint("Equal", 27, 28),
    Sketcher.Constraint("Equal", 28, 30),
    Sketcher.Constraint("Equal", 30, 32),
    Sketcher.Constraint("Equal", 32, 34),
    Sketcher.Constraint("Symmetric", 1, 3, 15, 3, -1, 1),
    Sketcher.Constraint("Symmetric", 6, 3, 20, 3, -1, 1),
    Sketcher.Constraint("Symmetric", 28, 3, 32, 3, -1, 1),
    Sketcher.Constraint("Symmetric", 3, 2, 17, 2, -1, 1),
    Sketcher.Constraint("Symmetric", 9, 2, 23, 2, -1, 1),
    Sketcher.Constraint("Symmetric", 11, 2, 25, 2, -1, 1),
    Sketcher.Constraint("Symmetric", 11, 2, 16, 2, -2),
    Sketcher.Constraint("Symmetric", 9, 2, 18, 2, -2),
    Sketcher.Constraint("Horizontal", 0, 2, 4, 2),
    Sketcher.Constraint("Vertical", 2, 2, 6, 1),
    Sketcher.Constraint("Equal", 23, 2),
    Sketcher.Constraint("Equal", 14, 7),
    Sketcher.Constraint("Equal", 33, 31),
    Sketcher.Constraint("Radius", 1, 10.0),
    Sketcher.Constraint("DistanceX", 0, 1, 0, 2, 180.0),
    Sketcher.Constraint("DistanceX", 3, 1, 3, 2, 20.0),
    Sketcher.Constraint("DistanceX", 29, 1, 29, 2, 176.0),
])
sketch8.setExpression("Constraints[84]", "Params.sketch8_radius")
sketch8.setExpression("Constraints[85]", "Params.sketch8_width")
sketch8.setExpression("Constraints[86]", "Params.sketch8_width2")
sketch8.setExpression("Constraints[87]", "Params.sketch8_width3")
pocket7 = body.newObject("PartDesign::Pocket", "Pocket006")
pocket7.Profile = sketch8
pocket7.setExpression("Length", "Params.pocket7_length")
pocket7.Reversed = True

sketch9 = body.newObject("Sketcher::SketchObject", "Sketch008")
sketch9.AttachmentSupport = (doc.getObject("XZ_Plane"), [""])
sketch9.MapMode = "FlatFace"
sketch9.AttachmentOffset = App.Placement(V(0, 0, 23), App.Rotation())
sketch9.addGeometry([
    Part.Circle(V(-90, -79.8, 0), V(0, 0, 1), 1.5),
    Part.Circle(V(-50, -79.8, 0), V(0, 0, 1), 1.5),
    Part.Circle(V(-50, -26.6, 0), V(0, 0, 1), 1.5),
    Part.Circle(V(-90, -26.6, 0), V(0, 0, 1), 1.5),
    Part.Circle(V(-90, 26.6, 0), V(0, 0, 1), 1.5),
    Part.Circle(V(-50, 26.6, 0), V(0, 0, 1), 1.5),
    Part.Circle(V(-50, 79.8, 0), V(0, 0, 1), 1.5),
    Part.Circle(V(-90, 79.8, 0), V(0, 0, 1), 1.5),
    Part.Circle(V(-35.25, 60, 0), V(0, 0, 1), 1.5),
    Part.Circle(V(0, 60, 0), V(0, 0, 1), 1.5),
    Part.Circle(V(35.25, 60, 0), V(0, 0, 1), 1.5),
    Part.Circle(V(50, 79.8, 0), V(0, 0, 1), 1.5),
    Part.Circle(V(90, 79.8, 0), V(0, 0, 1), 1.5),
    Part.Circle(V(90, 26.6, 0), V(0, 0, 1), 1.5),
    Part.Circle(V(50, 26.6, 0), V(0, 0, 1), 1.5),
    Part.Circle(V(50, -26.6, 0), V(0, 0, 1), 1.5),
    Part.Circle(V(90, -26.6, 0), V(0, 0, 1), 1.5),
    Part.Circle(V(90, -79.8, 0), V(0, 0, 1), 1.5),
    Part.Circle(V(50, -79.8, 0), V(0, 0, 1), 1.5),
], False)
sketch9.addConstraint([
    Sketcher.Constraint("Equal", 0, 1),
    Sketcher.Constraint("Equal", 1, 2),
    Sketcher.Constraint("Equal", 2, 3),
    Sketcher.Constraint("Equal", 3, 4),
    Sketcher.Constraint("Equal", 4, 5),
    Sketcher.Constraint("Equal", 5, 6),
    Sketcher.Constraint("Equal", 6, 7),
    Sketcher.Constraint("Equal", 7, 8),
    Sketcher.Constraint("Equal", 8, 9),
    Sketcher.Constraint("Equal", 9, 10),
    Sketcher.Constraint("Equal", 10, 11),
    Sketcher.Constraint("Equal", 11, 12),
    Sketcher.Constraint("Equal", 12, 13),
    Sketcher.Constraint("Equal", 13, 14),
    Sketcher.Constraint("Equal", 14, 15),
    Sketcher.Constraint("Equal", 15, 16),
    Sketcher.Constraint("Equal", 16, 17),
    Sketcher.Constraint("Equal", 17, 18),
    Sketcher.Constraint("Symmetric", 1, 3, 11, 3, -1, 1),
    Sketcher.Constraint("Symmetric", 0, 3, 12, 3, -1, 1),
    Sketcher.Constraint("Symmetric", 3, 3, 13, 3, -1, 1),
    Sketcher.Constraint("Symmetric", 2, 3, 14, 3, -1, 1),
    Sketcher.Constraint("Symmetric", 5, 3, 15, 3, -1, 1),
    Sketcher.Constraint("Symmetric", 4, 3, 16, 3, -1, 1),
    Sketcher.Constraint("Symmetric", 7, 3, 17, 3, -1, 1),
    Sketcher.Constraint("Symmetric", 6, 3, 18, 3, -1, 1),
    Sketcher.Constraint("Symmetric", 8, 3, 10, 3, -2),
    Sketcher.Constraint("Symmetric", 6, 3, 11, 3, -2),
    Sketcher.Constraint("Symmetric", 7, 3, 12, 3, -2),
    Sketcher.Constraint("Symmetric", 4, 3, 13, 3, -2),
    Sketcher.Constraint("Symmetric", 5, 3, 14, 3, -2),
    Sketcher.Constraint("PointOnObject", 9, 3, -2),
    Sketcher.Constraint("Horizontal", 0, 3, 1, 3),
    Sketcher.Constraint("Horizontal", 2, 3, 3, 3),
    Sketcher.Constraint("Horizontal", 8, 3, 9, 3),
    Sketcher.Constraint("Vertical", 1, 3, 2, 3),
    Sketcher.Constraint("Vertical", 0, 3, 3, 3),
    Sketcher.Constraint("Diameter", 0, 3.0),
    Sketcher.Constraint("DistanceX", 0, 3, -1, 1, 90.0),
    Sketcher.Constraint("DistanceX", 1, 3, -1, 1, 50.0),
    Sketcher.Constraint("DistanceY", -1, 1, 8, 3, 60.0),
    Sketcher.Constraint("DistanceY", 0, 3, -1, 1, 79.8),
    Sketcher.Constraint("DistanceY", 2, 3, -1, 1, 26.6),
    Sketcher.Constraint("DistanceX", 8, 3, 10, 3, 70.5),
])
sketch9.setExpression("Constraints[37]", "Params.sketch9_diameter")
doc.recompute()
hole = body.newObject("PartDesign::Hole", "Hole")
hole.Profile = sketch9
hole.ThreadType = "None"
hole.setExpression("Diameter", "Params.hole_diameter")
hole.DepthType = "ThroughAll"
hole.Reversed = True

sketch10 = body.newObject("Sketcher::SketchObject", "Sketch009")
sketch10.AttachmentSupport = (doc.getObject("XY_Plane"), [""])
sketch10.MapMode = "FlatFace"
sketch10.AttachmentOffset = App.Placement(V(0, 0, 120), App.Rotation())
sketch10.addGeometry([
    Part.Circle(V(-116, 20, 0), V(0, 0, 1), 1.7),
    Part.Circle(V(116, -18, 0), V(0, 0, 1), 1.7),
], False)
sketch10.addConstraint([
    Sketcher.Constraint("Equal", 0, 1),
    Sketcher.Constraint("Diameter", 0, 3.4),
    Sketcher.Constraint("DistanceX", 0, 3, -1, 1, 116.0),
    Sketcher.Constraint("DistanceY", -1, 1, 0, 3, 20.0),
    Sketcher.Constraint("DistanceX", -1, 1, 1, 3, 116.0),
    Sketcher.Constraint("DistanceY", 1, 3, -1, 1, 18.0),
])
sketch10.setExpression("Constraints[1]", "Params.sketch10_diameter")
doc.recompute()
hole2 = body.newObject("PartDesign::Hole", "Hole001")
hole2.Profile = sketch10
hole2.ThreadType = "None"
hole2.setExpression("Diameter", "Params.hole2_diameter")
hole2.DepthType = "Dimension"
hole2.setExpression("Depth", "Params.hole2_depth")
hole2.DrillPoint = "Flat"

sketch11 = body.newObject("Sketcher::SketchObject", "Sketch010")
sketch11.AttachmentSupport = (doc.getObject("YZ_Plane"), [""])
sketch11.MapMode = "FlatFace"
sketch11.AttachmentOffset = App.Placement(V(0, 0, 120), App.Rotation())
sketch11.addGeometry([
    Part.Circle(V(20, 116, 0), V(0, 0, 1), 1.7),
    Part.Circle(V(-18, -116, 0), V(0, 0, 1), 1.7),
], False)
sketch11.addConstraint([
    Sketcher.Constraint("Equal", 0, 1),
    Sketcher.Constraint("Diameter", 0, 3.4),
    Sketcher.Constraint("DistanceX", -1, 1, 0, 3, 20.0),
    Sketcher.Constraint("DistanceY", -1, 1, 0, 3, 116.0),
    Sketcher.Constraint("DistanceX", 1, 3, -1, 1, 18.0),
    Sketcher.Constraint("DistanceY", 1, 3, -1, 1, 116.0),
])
sketch11.setExpression("Constraints[1]", "Params.sketch11_diameter")
doc.recompute()
hole3 = body.newObject("PartDesign::Hole", "Hole002")
hole3.Profile = sketch11
hole3.ThreadType = "None"
hole3.setExpression("Diameter", "Params.hole3_diameter")
hole3.DepthType = "Dimension"
hole3.setExpression("Depth", "Params.hole3_depth")
hole3.DrillPoint = "Flat"

sketch12 = body.newObject("Sketcher::SketchObject", "Sketch011")
sketch12.AttachmentSupport = (doc.getObject("XY_Plane"), [""])
sketch12.MapMode = "FlatFace"
sketch12.AttachmentOffset = App.Placement(V(0, 0, -120), App.Rotation())
sketch12.addGeometry([
    Part.Circle(V(116, 20, 0), V(0, 0, 1), 1.7),
    Part.Circle(V(-116, -18, 0), V(0, 0, 1), 1.7),
], False)
sketch12.addConstraint([
    Sketcher.Constraint("Equal", 0, 1),
    Sketcher.Constraint("Diameter", 0, 3.4),
    Sketcher.Constraint("DistanceX", -1, 1, 0, 3, 116.0),
    Sketcher.Constraint("DistanceY", -1, 1, 0, 3, 20.0),
    Sketcher.Constraint("DistanceX", 1, 3, -1, 1, 116.0),
    Sketcher.Constraint("DistanceY", 1, 3, -1, 1, 18.0),
])
sketch12.setExpression("Constraints[1]", "Params.sketch12_diameter")
doc.recompute()
hole4 = body.newObject("PartDesign::Hole", "Hole003")
hole4.Profile = sketch12
hole4.ThreadType = "None"
hole4.setExpression("Diameter", "Params.hole4_diameter")
hole4.DepthType = "Dimension"
hole4.setExpression("Depth", "Params.hole4_depth")
hole4.DrillPoint = "Flat"
hole4.Reversed = True

sketch13 = body.newObject("Sketcher::SketchObject", "Sketch012")
sketch13.AttachmentSupport = (doc.getObject("YZ_Plane"), [""])
sketch13.MapMode = "FlatFace"
sketch13.AttachmentOffset = App.Placement(V(0, 0, -120), App.Rotation())
sketch13.addGeometry([
    Part.Circle(V(20, -116, 0), V(0, 0, 1), 1.7),
    Part.Circle(V(-18, 116, 0), V(0, 0, 1), 1.7),
], False)
sketch13.addConstraint([
    Sketcher.Constraint("Equal", 0, 1),
    Sketcher.Constraint("Diameter", 0, 3.4),
    Sketcher.Constraint("DistanceX", -1, 1, 0, 3, 20.0),
    Sketcher.Constraint("DistanceY", 0, 3, -1, 1, 116.0),
    Sketcher.Constraint("DistanceX", 1, 3, -1, 1, 18.0),
    Sketcher.Constraint("DistanceY", -1, 1, 1, 3, 116.0),
])
sketch13.setExpression("Constraints[1]", "Params.sketch13_diameter")
doc.recompute()
hole5 = body.newObject("PartDesign::Hole", "Hole004")
hole5.Profile = sketch13
hole5.ThreadType = "None"
hole5.setExpression("Diameter", "Params.hole5_diameter")
hole5.DepthType = "Dimension"
hole5.setExpression("Depth", "Params.hole5_depth")
hole5.DrillPoint = "Flat"
hole5.Reversed = True

sketch14 = body.newObject("Sketcher::SketchObject", "Sketch013")
sketch14.AttachmentSupport = (doc.getObject("XY_Plane"), [""])
sketch14.MapMode = "FlatFace"
sketch14.AttachmentOffset = App.Placement(V(0, 0, 100), App.Rotation())
sketch14.addGeometry([
    Part.LineSegment(V(-13.064106, 10.57, 0), V(-26.935894, 10.57, 0)),
    Part.ArcOfCircle(Part.Circle(V(-26.935894, 7.22, 0), V(0, 0, 1), 3.35), math.radians(90), math.radians(190)),
    Part.LineSegment(V(-30.235, 6.638279, 0), V(-29.406263, 1.938279, 0)),
    Part.ArcOfCircle(Part.Circle(V(-26.107157, 2.52, 0), V(0, 0, 1), 3.35), math.radians(-170), math.radians(-90)),
    Part.LineSegment(V(-26.107157, -0.83, 0), V(-13.892843, -0.83, 0)),
    Part.ArcOfCircle(Part.Circle(V(-13.892843, 2.52, 0), V(0, 0, 1), 3.35), math.radians(-90), math.radians(-10)),
    Part.LineSegment(V(-10.593737, 1.938279, 0), V(-9.765, 6.638279, 0)),
    Part.ArcOfCircle(Part.Circle(V(-13.064106, 7.22, 0), V(0, 0, 1), 3.35), math.radians(-10), math.radians(90)),
], False)
sketch14.addConstraint([
    Sketcher.Constraint("Tangent", 0, 2, 1, 1),
    Sketcher.Constraint("Tangent", 1, 2, 2, 1),
    Sketcher.Constraint("Tangent", 2, 2, 3, 1),
    Sketcher.Constraint("Tangent", 3, 2, 4, 1),
    Sketcher.Constraint("Tangent", 4, 2, 5, 1),
    Sketcher.Constraint("Tangent", 5, 2, 6, 1),
    Sketcher.Constraint("Tangent", 6, 2, 7, 1),
    Sketcher.Constraint("Tangent", 7, 2, 0, 1),
    Sketcher.Constraint("Horizontal", 0),
    Sketcher.Constraint("Horizontal", 4),
    Sketcher.Constraint("Equal", 1, 3),
    Sketcher.Constraint("Equal", 3, 5),
    Sketcher.Constraint("Equal", 5, 7),
    Sketcher.Constraint("Horizontal", 2, 2, 5, 2),
    Sketcher.Constraint("Angle", 2, Q("-80 deg")),
    Sketcher.Constraint("Radius", 1, 3.35),
    Sketcher.Constraint("DistanceY", 3, 3, 1, 3, 4.7),
    Sketcher.Constraint("DistanceY", -1, 1, 1, 3, 7.22),
    Sketcher.Constraint("DistanceX", 1, 2, -1, 1, 30.235),
    Sketcher.Constraint("DistanceX", 6, 2, -1, 1, 9.765),
])
sketch14.setExpression("Constraints[15]", "Params.sketch14_radius")
pocket8 = body.newObject("PartDesign::Pocket", "Pocket007")
pocket8.Profile = sketch14
pocket8.setExpression("Length", "Params.pocket8_length")

sketch15 = body.newObject("Sketcher::SketchObject", "Sketch014")
sketch15.AttachmentSupport = (doc.getObject("XY_Plane"), [""])
sketch15.MapMode = "FlatFace"
sketch15.AttachmentOffset = App.Placement(V(0, 0, 100), App.Rotation())
sketch15.addGeometry([
    Part.LineSegment(V(26.935894, 10.57, 0), V(13.064106, 10.57, 0)),
    Part.ArcOfCircle(Part.Circle(V(13.064106, 7.22, 0), V(0, 0, 1), 3.35), math.radians(90), math.radians(190)),
    Part.LineSegment(V(9.765, 6.638279, 0), V(10.593737, 1.938279, 0)),
    Part.ArcOfCircle(Part.Circle(V(13.892843, 2.52, 0), V(0, 0, 1), 3.35), math.radians(-170), math.radians(-90)),
    Part.LineSegment(V(13.892843, -0.83, 0), V(26.107157, -0.83, 0)),
    Part.ArcOfCircle(Part.Circle(V(26.107157, 2.52, 0), V(0, 0, 1), 3.35), math.radians(-90), math.radians(-10)),
    Part.LineSegment(V(29.406263, 1.938279, 0), V(30.235, 6.638279, 0)),
    Part.ArcOfCircle(Part.Circle(V(26.935894, 7.22, 0), V(0, 0, 1), 3.35), math.radians(-10), math.radians(90)),
], False)
sketch15.addConstraint([
    Sketcher.Constraint("Tangent", 0, 2, 1, 1),
    Sketcher.Constraint("Tangent", 1, 2, 2, 1),
    Sketcher.Constraint("Tangent", 2, 2, 3, 1),
    Sketcher.Constraint("Tangent", 3, 2, 4, 1),
    Sketcher.Constraint("Tangent", 4, 2, 5, 1),
    Sketcher.Constraint("Tangent", 5, 2, 6, 1),
    Sketcher.Constraint("Tangent", 6, 2, 7, 1),
    Sketcher.Constraint("Tangent", 7, 2, 0, 1),
    Sketcher.Constraint("Horizontal", 0),
    Sketcher.Constraint("Horizontal", 4),
    Sketcher.Constraint("Equal", 1, 3),
    Sketcher.Constraint("Equal", 3, 5),
    Sketcher.Constraint("Equal", 5, 7),
    Sketcher.Constraint("Horizontal", 2, 2, 5, 2),
    Sketcher.Constraint("Angle", 2, Q("-80 deg")),
    Sketcher.Constraint("Radius", 1, 3.35),
    Sketcher.Constraint("DistanceY", 3, 3, 1, 3, 4.7),
    Sketcher.Constraint("DistanceY", -1, 1, 1, 3, 7.22),
    Sketcher.Constraint("DistanceX", -1, 1, 1, 2, 9.765),
    Sketcher.Constraint("DistanceX", -1, 1, 6, 2, 30.235),
])
sketch15.setExpression("Constraints[15]", "Params.sketch15_radius")
pocket9 = body.newObject("PartDesign::Pocket", "Pocket008")
pocket9.Profile = sketch15
pocket9.setExpression("Length", "Params.pocket9_length")

sketch16 = body.newObject("Sketcher::SketchObject", "Sketch015")
sketch16.AttachmentSupport = (doc.getObject("XY_Plane"), [""])
sketch16.MapMode = "FlatFace"
sketch16.AttachmentOffset = App.Placement(V(0, 0, 100), App.Rotation())
sketch16.addGeometry([
    Part.Circle(V(-32.495, 4.86, 0), V(0, 0, 1), 1.25),
    Part.Circle(V(-7.505, 4.86, 0), V(0, 0, 1), 1.25),
    Part.Circle(V(7.505, 4.86, 0), V(0, 0, 1), 1.25),
    Part.Circle(V(32.495, 4.86, 0), V(0, 0, 1), 1.25),
], False)
sketch16.addConstraint([
    Sketcher.Constraint("Equal", 0, 1),
    Sketcher.Constraint("Equal", 1, 2),
    Sketcher.Constraint("Equal", 2, 3),
    Sketcher.Constraint("Symmetric", 1, 3, 2, 3, -2),
    Sketcher.Constraint("Symmetric", 0, 3, 3, 3, -2),
    Sketcher.Constraint("Horizontal", 0, 3, 1, 3),
    Sketcher.Constraint("Diameter", 0, 2.5),
    Sketcher.Constraint("DistanceX", 0, 3, 2, 3, 40.0),
    Sketcher.Constraint("DistanceY", -1, 1, 0, 3, 4.86),
    Sketcher.Constraint("DistanceX", 0, 3, 1, 3, 24.99),
])
sketch16.setExpression("Constraints[6]", "Params.sketch16_diameter")
doc.recompute()
hole6 = body.newObject("PartDesign::Hole", "Hole005")
hole6.Profile = sketch16
hole6.ThreadType = "None"
hole6.setExpression("Diameter", "Params.hole6_diameter")
hole6.DepthType = "Dimension"
hole6.setExpression("Depth", "Params.hole6_depth")
hole6.DrillPoint = "Angled"
hole6.DrillPointAngle = 118

doc.recompute()
